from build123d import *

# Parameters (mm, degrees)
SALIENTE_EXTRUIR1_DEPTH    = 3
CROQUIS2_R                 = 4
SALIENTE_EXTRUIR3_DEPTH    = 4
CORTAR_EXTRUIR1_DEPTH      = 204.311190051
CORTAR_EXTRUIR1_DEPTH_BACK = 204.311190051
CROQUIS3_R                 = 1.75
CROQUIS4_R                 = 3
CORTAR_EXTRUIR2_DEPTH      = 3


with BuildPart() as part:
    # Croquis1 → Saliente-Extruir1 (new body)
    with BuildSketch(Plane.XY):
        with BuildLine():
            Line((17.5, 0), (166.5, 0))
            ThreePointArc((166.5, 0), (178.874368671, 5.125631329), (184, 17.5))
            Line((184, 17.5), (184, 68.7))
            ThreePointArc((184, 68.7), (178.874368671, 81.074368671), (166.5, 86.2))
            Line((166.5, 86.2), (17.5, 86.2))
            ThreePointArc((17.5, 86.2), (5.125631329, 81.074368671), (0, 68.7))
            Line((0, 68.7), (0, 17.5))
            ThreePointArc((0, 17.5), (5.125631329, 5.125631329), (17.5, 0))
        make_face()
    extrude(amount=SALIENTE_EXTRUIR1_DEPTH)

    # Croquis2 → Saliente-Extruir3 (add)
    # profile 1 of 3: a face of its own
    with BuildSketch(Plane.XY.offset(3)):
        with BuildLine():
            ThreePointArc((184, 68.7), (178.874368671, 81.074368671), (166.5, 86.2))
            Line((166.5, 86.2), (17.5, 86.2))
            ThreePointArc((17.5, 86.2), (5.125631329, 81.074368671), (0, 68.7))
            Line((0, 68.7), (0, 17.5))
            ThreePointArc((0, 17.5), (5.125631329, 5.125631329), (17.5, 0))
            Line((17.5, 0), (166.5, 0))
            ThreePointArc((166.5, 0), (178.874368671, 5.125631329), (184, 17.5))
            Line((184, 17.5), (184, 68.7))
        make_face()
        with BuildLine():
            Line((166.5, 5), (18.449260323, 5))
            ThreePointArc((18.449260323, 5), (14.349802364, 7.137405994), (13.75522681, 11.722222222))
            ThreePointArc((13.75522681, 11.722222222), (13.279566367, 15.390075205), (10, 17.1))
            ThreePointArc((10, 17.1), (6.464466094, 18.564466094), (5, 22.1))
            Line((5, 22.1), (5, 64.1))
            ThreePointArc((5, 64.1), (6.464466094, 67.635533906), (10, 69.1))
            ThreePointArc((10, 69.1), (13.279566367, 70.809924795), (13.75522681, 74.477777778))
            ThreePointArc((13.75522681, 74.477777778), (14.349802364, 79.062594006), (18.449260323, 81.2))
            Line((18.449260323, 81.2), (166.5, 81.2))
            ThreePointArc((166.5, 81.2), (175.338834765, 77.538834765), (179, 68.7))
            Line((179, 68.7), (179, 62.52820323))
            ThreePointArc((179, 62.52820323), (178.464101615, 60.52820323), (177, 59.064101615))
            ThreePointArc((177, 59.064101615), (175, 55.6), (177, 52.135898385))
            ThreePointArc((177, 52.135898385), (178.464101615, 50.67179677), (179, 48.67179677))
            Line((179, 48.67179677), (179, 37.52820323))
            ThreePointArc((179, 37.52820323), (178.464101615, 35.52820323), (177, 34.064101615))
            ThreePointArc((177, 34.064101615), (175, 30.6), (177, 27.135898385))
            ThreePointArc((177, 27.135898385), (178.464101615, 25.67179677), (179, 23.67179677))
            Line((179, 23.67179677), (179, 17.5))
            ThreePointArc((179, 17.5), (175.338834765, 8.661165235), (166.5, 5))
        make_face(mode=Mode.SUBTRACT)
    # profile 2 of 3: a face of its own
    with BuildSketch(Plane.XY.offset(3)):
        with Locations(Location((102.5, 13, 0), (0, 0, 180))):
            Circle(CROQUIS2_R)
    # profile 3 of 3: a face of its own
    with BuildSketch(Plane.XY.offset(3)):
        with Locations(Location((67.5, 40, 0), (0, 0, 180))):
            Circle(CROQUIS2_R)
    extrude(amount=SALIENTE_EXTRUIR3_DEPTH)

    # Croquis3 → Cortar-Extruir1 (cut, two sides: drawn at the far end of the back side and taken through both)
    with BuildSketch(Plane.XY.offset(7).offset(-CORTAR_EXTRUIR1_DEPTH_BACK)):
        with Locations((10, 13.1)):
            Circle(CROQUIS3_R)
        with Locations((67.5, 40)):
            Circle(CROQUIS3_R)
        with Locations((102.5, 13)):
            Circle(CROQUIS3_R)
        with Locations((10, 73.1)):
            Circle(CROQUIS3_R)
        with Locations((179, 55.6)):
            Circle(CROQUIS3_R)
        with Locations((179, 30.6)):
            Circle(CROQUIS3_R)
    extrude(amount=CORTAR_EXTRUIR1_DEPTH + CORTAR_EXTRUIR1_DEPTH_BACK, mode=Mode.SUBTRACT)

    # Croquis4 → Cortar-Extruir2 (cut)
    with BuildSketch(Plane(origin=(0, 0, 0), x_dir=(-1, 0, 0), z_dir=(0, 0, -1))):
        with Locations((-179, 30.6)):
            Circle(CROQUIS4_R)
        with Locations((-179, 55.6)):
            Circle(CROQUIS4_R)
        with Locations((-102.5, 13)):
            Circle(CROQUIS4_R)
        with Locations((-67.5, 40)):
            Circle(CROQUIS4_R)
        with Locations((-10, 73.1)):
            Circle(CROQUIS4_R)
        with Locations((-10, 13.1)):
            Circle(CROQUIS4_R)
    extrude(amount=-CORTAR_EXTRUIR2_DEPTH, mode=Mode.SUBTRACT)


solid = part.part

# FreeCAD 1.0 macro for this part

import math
import FreeCAD as App
import Part
import Sketcher

doc = App.newDocument("Part")
body = doc.addObject("PartDesign::Body", "Body")

sketch1 = body.newObject("Sketcher::SketchObject", "Sketch")
sketch1.AttachmentSupport = (doc.getObject("XY_Plane"), [""])
sketch1.MapMode = "FlatFace"
sketch1.addGeometry(Part.LineSegment(App.Vector(17.5, 0, 0), App.Vector(166.5, 0, 0)), False)
sketch1.addGeometry(Part.ArcOfCircle(Part.Circle(App.Vector(166.5, 17.5, 0), App.Vector(0, 0, 1), 17.5), math.radians(-90), math.radians(0)), False)
sketch1.addGeometry(Part.LineSegment(App.Vector(184, 17.5, 0), App.Vector(184, 68.7, 0)), False)
sketch1.addGeometry(Part.ArcOfCircle(Part.Circle(App.Vector(166.5, 68.7, 0), App.Vector(0, 0, 1), 17.5), math.radians(0), math.radians(90)), False)
sketch1.addGeometry(Part.LineSegment(App.Vector(166.5, 86.2, 0), App.Vector(17.5, 86.2, 0)), False)
sketch1.addGeometry(Part.ArcOfCircle(Part.Circle(App.Vector(17.5, 68.7, 0), App.Vector(0, 0, 1), 17.5), math.radians(90), math.radians(180)), False)
sketch1.addGeometry(Part.LineSegment(App.Vector(0, 68.7, 0), App.Vector(0, 17.5, 0)), False)
sketch1.addGeometry(Part.ArcOfCircle(Part.Circle(App.Vector(17.5, 17.5, 0), App.Vector(0, 0, 1), 17.5), math.radians(180), math.radians(270)), False)
sketch1.addConstraint(Sketcher.Constraint("Tangent", 0, 2, 1, 1))
sketch1.addConstraint(Sketcher.Constraint("Tangent", 1, 2, 2, 1))
sketch1.addConstraint(Sketcher.Constraint("Tangent", 2, 2, 3, 1))
sketch1.addConstraint(Sketcher.Constraint("Tangent", 3, 2, 4, 1))
sketch1.addConstraint(Sketcher.Constraint("Tangent", 4, 2, 5, 1))
sketch1.addConstraint(Sketcher.Constraint("Tangent", 5, 2, 6, 1))
sketch1.addConstraint(Sketcher.Constraint("Tangent", 6, 2, 7, 1))
sketch1.addConstraint(Sketcher.Constraint("Tangent", 7, 2, 0, 1))
sketch1.addConstraint(Sketcher.Constraint("Horizontal", 0))
sketch1.addConstraint(Sketcher.Constraint("Vertical", 2))
sketch1.addConstraint(Sketcher.Constraint("Horizontal", 4))
sketch1.addConstraint(Sketcher.Constraint("Vertical", 6))
sketch1.addConstraint(Sketcher.Constraint("Equal", 1, 3))
sketch1.addConstraint(Sketcher.Constraint("Equal", 3, 5))
sketch1.addConstraint(Sketcher.Constraint("Equal", 5, 7))
sketch1.addConstraint(Sketcher.Constraint("PointOnObject", 0, 2, -1))
sketch1.addConstraint(Sketcher.Constraint("PointOnObject", 5, 2, -2))
sketch1.addConstraint(Sketcher.Constraint("Radius", 1, 17.5))
sketch1.addConstraint(Sketcher.Constraint("DistanceX", 0, 1, 0, 2, 149.0))
sketch1.addConstraint(Sketcher.Constraint("DistanceY", 2, 1, 2, 2, 51.2))
pad1 = body.newObject("PartDesign::Pad", "Pad")
pad1.Profile = sketch1
pad1.Length = 3

sketch2 = body.newObject("Sketcher::SketchObject", "Sketch001")
sketch2.AttachmentSupport = (doc.getObject("XY_Plane"), [""])
sketch2.MapMode = "FlatFace"
sketch2.AttachmentOffset = App.Placement(App.Vector(0, 0, 3), App.Rotation())
sketch2.addGeometry(Part.ArcOfCircle(Part.Circle(App.Vector(166.5, 68.7, 0), App.Vector(0, 0, 1), 17.5), math.radians(0), math.radians(90)), False)
sketch2.addGeometry(Part.LineSegment(App.Vector(166.5, 86.2, 0), App.Vector(17.5, 86.2, 0)), False)
sketch2.addGeometry(Part.ArcOfCircle(Part.Circle(App.Vector(17.5, 68.7, 0), App.Vector(0, 0, 1), 17.5), math.radians(90), math.radians(180)), False)
sketch2.addGeometry(Part.LineSegment(App.Vector(0, 68.7, 0), App.Vector(0, 17.5, 0)), False)
sketch2.addGeometry(Part.ArcOfCircle(Part.Circle(App.Vector(17.5, 17.5, 0), App.Vector(0, 0, 1), 17.5), math.radians(180), math.radians(270)), False)
sketch2.addGeometry(Part.LineSegment(App.Vector(17.5, 0, 0), App.Vector(166.5, 0, 0)), False)
sketch2.addGeometry(Part.ArcOfCircle(Part.Circle(App.Vector(166.5, 17.5, 0), App.Vector(0, 0, 1), 17.5), math.radians(-90), math.radians(0)), False)
sketch2.addGeometry(Part.LineSegment(App.Vector(184, 17.5, 0), App.Vector(184, 68.7, 0)), False)
sketch2.addGeometry(Part.ArcOfCircle(Part.Circle(App.Vector(166.5, 17.5, 0), App.Vector(0, 0, 1), 12.5), math.radians(-90), math.radians(0)), False)
sketch2.addGeometry(Part.LineSegment(App.Vector(166.5, 5, 0), App.Vector(18.44926, 5, 0)), False)
sketch2.addGeometry(Part.ArcOfCircle(Part.Circle(App.Vector(18.44926, 10, 0), App.Vector(0, 0, 1), 5), math.radians(159.852114), math.radians(270)), False)
sketch2.addGeometry(Part.ArcOfCircle(Part.Circle(App.Vector(10, 13.1, 0), App.Vector(0, 0, 1), 4), math.radians(-20.147886), math.radians(90)), False)
sketch2.addGeometry(Part.ArcOfCircle(Part.Circle(App.Vector(10, 22.1, 0), App.Vector(0, 0, 1), 5), math.radians(180), math.radians(270)), False)
sketch2.addGeometry(Part.LineSegment(App.Vector(5, 22.1, 0), App.Vector(5, 64.1, 0)), False)
sketch2.addGeometry(Part.ArcOfCircle(Part.Circle(App.Vector(10, 64.1, 0), App.Vector(0, 0, 1), 5), math.radians(90), math.radians(180)), False)
sketch2.addGeometry(Part.ArcOfCircle(Part.Circle(App.Vector(10, 73.1, 0), App.Vector(0, 0, 1), 4), math.radians(-90), math.radians(20.147886)), False)
sketch2.addGeometry(Part.ArcOfCircle(Part.Circle(App.Vector(18.44926, 76.2, 0), App.Vector(0, 0, 1), 5), math.radians(90), math.radians(200.147886)), False)
sketch2.addGeometry(Part.LineSegment(App.Vector(18.44926, 81.2, 0), App.Vector(166.5, 81.2, 0)), False)
sketch2.addGeometry(Part.ArcOfCircle(Part.Circle(App.Vector(166.5, 68.7, 0), App.Vector(0, 0, 1), 12.5), math.radians(0), math.radians(90)), False)
sketch2.addGeometry(Part.LineSegment(App.Vector(179, 68.7, 0), App.Vector(179, 62.528203, 0)), False)
sketch2.addGeometry(Part.ArcOfCircle(Part.Circle(App.Vector(175, 62.528203, 0), App.Vector(0, 0, 1), 4), math.radians(-60), math.radians(0)), False)
sketch2.addGeometry(Part.ArcOfCircle(Part.Circle(App.Vector(179, 55.6, 0), App.Vector(0, 0, 1), 4), math.radians(120), math.radians(240)), False)
sketch2.addGeometry(Part.ArcOfCircle(Part.Circle(App.Vector(175, 48.671797, 0), App.Vector(0, 0, 1), 4), math.radians(0), math.radians(60)), False)
sketch2.addGeometry(Part.LineSegment(App.Vector(179, 48.671797, 0), App.Vector(179, 37.528203, 0)), False)
sketch2.addGeometry(Part.ArcOfCircle(Part.Circle(App.Vector(175, 37.528203, 0), App.Vector(0, 0, 1), 4), math.radians(-60), math.radians(0)), False)
sketch2.addGeometry(Part.ArcOfCircle(Part.Circle(App.Vector(179, 30.6, 0), App.Vector(0, 0, 1), 4), math.radians(120), math.radians(240)), False)
sketch2.addGeometry(Part.ArcOfCircle(Part.Circle(App.Vector(175, 23.671797, 0), App.Vector(0, 0, 1), 4), math.radians(0), math.radians(60)), False)
sketch2.addGeometry(Part.LineSegment(App.Vector(179, 23.671797, 0), App.Vector(179, 17.5, 0)), False)
sketch2.addGeometry(Part.Circle(App.Vector(102.5, 13, 0), App.Vector(0, 0, 1), 4), False)
sketch2.addGeometry(Part.Circle(App.Vector(67.5, 40, 0), App.Vector(0, 0, 1), 4), False)
sketch2.addConstraint(Sketcher.Constraint("Tangent", 0, 2, 1, 1))
sketch2.addConstraint(Sketcher.Constraint("Tangent", 1, 2, 2, 1))
sketch2.addConstraint(Sketcher.Constraint("Tangent", 2, 2, 3, 1))
sketch2.addConstraint(Sketcher.Constraint("Tangent", 3, 2, 4, 1))
sketch2.addConstraint(Sketcher.Constraint("Tangent", 4, 2, 5, 1))
sketch2.addConstraint(Sketcher.Constraint("Tangent", 5, 2, 6, 1))
sketch2.addConstraint(Sketcher.Constraint("Tangent", 6, 2, 7, 1))
sketch2.addConstraint(Sketcher.Constraint("Tangent", 7, 2, 0, 1))
sketch2.addConstraint(Sketcher.Constraint("Tangent", 8, 1, 9, 1))
sketch2.addConstraint(Sketcher.Constraint("Tangent", 9, 2, 10, 2))
sketch2.addConstraint(Sketcher.Constraint("Tangent", 10, 1, 11, 1))
sketch2.addConstraint(Sketcher.Constraint("Tangent", 11, 2, 12, 2))
sketch2.addConstraint(Sketcher.Constraint("Tangent", 12, 1, 13, 1))
sketch2.addConstraint(Sketcher.Constraint("Tangent", 13, 2, 14, 2))
sketch2.addConstraint(Sketcher.Constraint("Tangent", 14, 1, 15, 1))
sketch2.addConstraint(Sketcher.Constraint("Tangent", 15, 2, 16, 2))
sketch2.addConstraint(Sketcher.Constraint("Tangent", 16, 1, 17, 1))
sketch2.addConstraint(Sketcher.Constraint("Tangent", 17, 2, 18, 2))
sketch2.addConstraint(Sketcher.Constraint("Tangent", 18, 1, 19, 1))
sketch2.addConstraint(Sketcher.Constraint("Tangent", 19, 2, 20, 2))
sketch2.addConstraint(Sketcher.Constraint("Tangent", 20, 1, 21, 1))
sketch2.addConstraint(Sketcher.Constraint("Tangent", 21, 2, 22, 2))
sketch2.addConstraint(Sketcher.Constraint("Tangent", 22, 1, 23, 1))
sketch2.addConstraint(Sketcher.Constraint("Tangent", 23, 2, 24, 2))
sketch2.addConstraint(Sketcher.Constraint("Tangent", 24, 1, 25, 1))
sketch2.addConstraint(Sketcher.Constraint("Tangent", 25, 2, 26, 2))
sketch2.addConstraint(Sketcher.Constraint("Tangent", 26, 1, 27, 1))
sketch2.addConstraint(Sketcher.Constraint("Tangent", 27, 2, 8, 2))
sketch2.addConstraint(Sketcher.Constraint("Horizontal", 1))
sketch2.addConstraint(Sketcher.Constraint("Vertical", 3))
sketch2.addConstraint(Sketcher.Constraint("Horizontal", 5))
sketch2.addConstraint(Sketcher.Constraint("Vertical", 7))
sketch2.addConstraint(Sketcher.Constraint("Horizontal", 9))
sketch2.addConstraint(Sketcher.Constraint("Vertical", 13))
sketch2.addConstraint(Sketcher.Constraint("Horizontal", 17))
sketch2.addConstraint(Sketcher.Constraint("Vertical", 19))
sketch2.addConstraint(Sketcher.Constraint("Vertical", 23))
sketch2.addConstraint(Sketcher.Constraint("Vertical", 27))
sketch2.addConstraint(Sketcher.Constraint("Coincident", 8, 3, 6, 3))
sketch2.addConstraint(Sketcher.Constraint("Coincident", 18, 3, 0, 3))
sketch2.addConstraint(Sketcher.Constraint("Equal", 0, 2))
sketch2.addConstraint(Sketcher.Constraint("Equal", 2, 4))
sketch2.addConstraint(Sketcher.Constraint("Equal", 4, 6))
sketch2.addConstraint(Sketcher.Constraint("Equal", 10, 12))
sketch2.addConstraint(Sketcher.Constraint("Equal", 12, 14))
sketch2.addConstraint(Sketcher.Constraint("Equal", 11, 15))
sketch2.addConstraint(Sketcher.Constraint("Equal", 14, 16))
sketch2.addConstraint(Sketcher.Constraint("Equal", 8, 18))
sketch2.addConstraint(Sketcher.Constraint("Equal", 15, 20))
sketch2.addConstraint(Sketcher.Constraint("Equal", 20, 21))
sketch2.addConstraint(Sketcher.Constraint("Equal", 21, 22))
sketch2.addConstraint(Sketcher.Constraint("Equal", 22, 24))
sketch2.addConstraint(Sketcher.Constraint("Equal", 24, 25))
sketch2.addConstraint(Sketcher.Constraint("Equal", 25, 26))
sketch2.addConstraint(Sketcher.Constraint("Equal", 26, 28))
sketch2.addConstraint(Sketcher.Constraint("Equal", 28, 29))
sketch2.addConstraint(Sketcher.Constraint("PointOnObject", 2, 2, -2))
sketch2.addConstraint(Sketcher.Constraint("PointOnObject", 4, 2, -1))
sketch2.addConstraint(Sketcher.Constraint("Vertical", 11, 3, 12, 3))
sketch2.addConstraint(Sketcher.Constraint("Vertical", 14, 3, 15, 3))
sketch2.addConstraint(Sketcher.Constraint("Vertical", 10, 3, 16, 3))
sketch2.addConstraint(Sketcher.Constraint("Vertical", 20, 3, 22, 3))
sketch2.addConstraint(Sketcher.Constraint("Vertical", 21, 3, 25, 3))
sketch2.addConstraint(Sketcher.Constraint("Vertical", 25, 3, 18, 1))
sketch2.addConstraint(Sketcher.Constraint("Equal", 19, 27))
sketch2.addConstraint(Sketcher.Constraint("Diameter", 28, 8.0))
sketch2.addConstraint(Sketcher.Constraint("Radius", 10, 5.0))
sketch2.addConstraint(Sketcher.Constraint("Radius", 0, 17.5))
sketch2.addConstraint(Sketcher.Constraint("Radius", 8, 12.5))
sketch2.addConstraint(Sketcher.Constraint("DistanceX", 1, 2, 1, 1, 149.0))
sketch2.addConstraint(Sketcher.Constraint("DistanceY", 13, 1, 13, 2, 42.0))
sketch2.addConstraint(Sketcher.Constraint("DistanceY", 3, 2, 3, 1, 51.2))
sketch2.addConstraint(Sketcher.Constraint("DistanceX", -1, 1, 11, 3, 10.0))
sketch2.addConstraint(Sketcher.Constraint("DistanceY", -1, 1, 28, 3, 13.0))
sketch2.addConstraint(Sketcher.Constraint("DistanceY", -1, 1, 29, 3, 40.0))
sketch2.addConstraint(Sketcher.Constraint("DistanceY", 24, 3, 20, 3, 25.0))
sketch2.addConstraint(Sketcher.Constraint("DistanceX", 28, 3, 6, 3, 64.0))
sketch2.addConstraint(Sketcher.Constraint("DistanceX", 29, 3, 28, 3, 35.0))
pad2 = body.newObject("PartDesign::Pad", "Pad001")
pad2.Profile = sketch2
pad2.Length = 4

sketch3 = body.newObject("Sketcher::SketchObject", "Sketch002")
sketch3.AttachmentSupport = (doc.getObject("XY_Plane"), [""])
sketch3.MapMode = "FlatFace"
sketch3.AttachmentOffset = App.Placement(App.Vector(0, 0, 7), App.Rotation())
sketch3.addGeometry(Part.Circle(App.Vector(10, 13.1, 0), App.Vector(0, 0, 1), 1.75), False)
sketch3.addGeometry(Part.Circle(App.Vector(67.5, 40, 0), App.Vector(0, 0, 1), 1.75), False)
sketch3.addGeometry(Part.Circle(App.Vector(102.5, 13, 0), App.Vector(0, 0, 1), 1.75), False)
sketch3.addGeometry(Part.Circle(App.Vector(10, 73.1, 0), App.Vector(0, 0, 1), 1.75), False)
sketch3.addGeometry(Part.Circle(App.Vector(179, 55.6, 0), App.Vector(0, 0, 1), 1.75), False)
sketch3.addGeometry(Part.Circle(App.Vector(179, 30.6, 0), App.Vector(0, 0, 1), 1.75), False)
sketch3.addConstraint(Sketcher.Constraint("Equal", 0, 1))
sketch3.addConstraint(Sketcher.Constraint("Equal", 1, 2))
sketch3.addConstraint(Sketcher.Constraint("Equal", 2, 3))
sketch3.addConstraint(Sketcher.Constraint("Equal", 3, 4))
sketch3.addConstraint(Sketcher.Constraint("Equal", 4, 5))
sketch3.addConstraint(Sketcher.Constraint("Vertical", 0, 3, 3, 3))
sketch3.addConstraint(Sketcher.Constraint("Vertical", 4, 3, 5, 3))
sketch3.addConstraint(Sketcher.Constraint("Diameter", 0, 3.5))
sketch3.addConstraint(Sketcher.Constraint("DistanceX", -1, 1, 0, 3, 10.0))
sketch3.addConstraint(Sketcher.Constraint("DistanceY", -1, 1, 1, 3, 40.0))
sketch3.addConstraint(Sketcher.Constraint("DistanceY", -1, 1, 2, 3, 13.0))
sketch3.addConstraint(Sketcher.Constraint("DistanceX", -1, 1, 4, 3, 179.0))
sketch3.addConstraint(Sketcher.Constraint("DistanceX", 1, 3, 2, 3, 35.0))
sketch3.addConstraint(Sketcher.Constraint("DistanceY", 0, 3, 3, 3, 60.0))
sketch3.addConstraint(Sketcher.Constraint("DistanceY", 5, 3, 4, 3, 25.0))
sketch3.addConstraint(Sketcher.Constraint("DistanceY", -1, 1, 0, 3, 13.1))
sketch3.addConstraint(Sketcher.Constraint("DistanceX", -1, 1, 1, 3, 67.5))
sketch3.addConstraint(Sketcher.Constraint("DistanceY", -1, 1, 4, 3, 55.6))
pocket1 = body.newObject("PartDesign::Pocket", "Pocket")
pocket1.Profile = sketch3
pocket1.Type = "ThroughAll"
pocket1.Midplane = True

sketch4 = body.newObject("Sketcher::SketchObject", "Sketch003")
sketch4.AttachmentSupport = (doc.getObject("XY_Plane"), [""])
sketch4.MapMode = "FlatFace"
sketch4.addGeometry(Part.Circle(App.Vector(179, 30.6, 0), App.Vector(0, 0, 1), 3), False)
sketch4.addGeometry(Part.Circle(App.Vector(179, 55.6, 0), App.Vector(0, 0, 1), 3), False)
sketch4.addGeometry(Part.Circle(App.Vector(102.5, 13, 0), App.Vector(0, 0, 1), 3), False)
sketch4.addGeometry(Part.Circle(App.Vector(67.5, 40, 0), App.Vector(0, 0, 1), 3), False)
sketch4.addGeometry(Part.Circle(App.Vector(10, 73.1, 0), App.Vector(0, 0, 1), 3), False)
sketch4.addGeometry(Part.Circle(App.Vector(10, 13.1, 0), App.Vector(0, 0, 1), 3), False)
sketch4.addConstraint(Sketcher.Constraint("Equal", 0, 1))
sketch4.addConstraint(Sketcher.Constraint("Equal", 1, 2))
sketch4.addConstraint(Sketcher.Constraint("Equal", 2, 3))
sketch4.addConstraint(Sketcher.Constraint("Equal", 3, 4))
sketch4.addConstraint(Sketcher.Constraint("Equal", 4, 5))
sketch4.addConstraint(Sketcher.Constraint("Vertical", 0, 3, 1, 3))
sketch4.addConstraint(Sketcher.Constraint("Vertical", 4, 3, 5, 3))
sketch4.addConstraint(Sketcher.Constraint("Diameter", 0, 6.0))
sketch4.addConstraint(Sketcher.Constraint("DistanceX", -1, 1, 0, 3, 179.0))
sketch4.addConstraint(Sketcher.Constraint("DistanceY", -1, 1, 2, 3, 13.0))
sketch4.addConstraint(Sketcher.Constraint("DistanceY", -1, 1, 3, 3, 40.0))
sketch4.addConstraint(Sketcher.Constraint("DistanceX", -1, 1, 4, 3, 10.0))
sketch4.addConstraint(Sketcher.Constraint("DistanceY", 0, 3, 1, 3, 25.0))
sketch4.addConstraint(Sketcher.Constraint("DistanceX", 3, 3, 2, 3, 35.0))
sketch4.addConstraint(Sketcher.Constraint("DistanceY", 5, 3, 4, 3, 60.0))
sketch4.addConstraint(Sketcher.Constraint("DistanceY", -1, 1, 0, 3, 30.6))
sketch4.addConstraint(Sketcher.Constraint("DistanceX", -1, 1, 2, 3, 102.5))
sketch4.addConstraint(Sketcher.Constraint("DistanceY", -1, 1, 4, 3, 73.1))
pocket2 = body.newObject("PartDesign::Pocket", "Pocket001")
pocket2.Profile = sketch4
pocket2.Length = 3
pocket2.Reversed = True

doc.recompute()
